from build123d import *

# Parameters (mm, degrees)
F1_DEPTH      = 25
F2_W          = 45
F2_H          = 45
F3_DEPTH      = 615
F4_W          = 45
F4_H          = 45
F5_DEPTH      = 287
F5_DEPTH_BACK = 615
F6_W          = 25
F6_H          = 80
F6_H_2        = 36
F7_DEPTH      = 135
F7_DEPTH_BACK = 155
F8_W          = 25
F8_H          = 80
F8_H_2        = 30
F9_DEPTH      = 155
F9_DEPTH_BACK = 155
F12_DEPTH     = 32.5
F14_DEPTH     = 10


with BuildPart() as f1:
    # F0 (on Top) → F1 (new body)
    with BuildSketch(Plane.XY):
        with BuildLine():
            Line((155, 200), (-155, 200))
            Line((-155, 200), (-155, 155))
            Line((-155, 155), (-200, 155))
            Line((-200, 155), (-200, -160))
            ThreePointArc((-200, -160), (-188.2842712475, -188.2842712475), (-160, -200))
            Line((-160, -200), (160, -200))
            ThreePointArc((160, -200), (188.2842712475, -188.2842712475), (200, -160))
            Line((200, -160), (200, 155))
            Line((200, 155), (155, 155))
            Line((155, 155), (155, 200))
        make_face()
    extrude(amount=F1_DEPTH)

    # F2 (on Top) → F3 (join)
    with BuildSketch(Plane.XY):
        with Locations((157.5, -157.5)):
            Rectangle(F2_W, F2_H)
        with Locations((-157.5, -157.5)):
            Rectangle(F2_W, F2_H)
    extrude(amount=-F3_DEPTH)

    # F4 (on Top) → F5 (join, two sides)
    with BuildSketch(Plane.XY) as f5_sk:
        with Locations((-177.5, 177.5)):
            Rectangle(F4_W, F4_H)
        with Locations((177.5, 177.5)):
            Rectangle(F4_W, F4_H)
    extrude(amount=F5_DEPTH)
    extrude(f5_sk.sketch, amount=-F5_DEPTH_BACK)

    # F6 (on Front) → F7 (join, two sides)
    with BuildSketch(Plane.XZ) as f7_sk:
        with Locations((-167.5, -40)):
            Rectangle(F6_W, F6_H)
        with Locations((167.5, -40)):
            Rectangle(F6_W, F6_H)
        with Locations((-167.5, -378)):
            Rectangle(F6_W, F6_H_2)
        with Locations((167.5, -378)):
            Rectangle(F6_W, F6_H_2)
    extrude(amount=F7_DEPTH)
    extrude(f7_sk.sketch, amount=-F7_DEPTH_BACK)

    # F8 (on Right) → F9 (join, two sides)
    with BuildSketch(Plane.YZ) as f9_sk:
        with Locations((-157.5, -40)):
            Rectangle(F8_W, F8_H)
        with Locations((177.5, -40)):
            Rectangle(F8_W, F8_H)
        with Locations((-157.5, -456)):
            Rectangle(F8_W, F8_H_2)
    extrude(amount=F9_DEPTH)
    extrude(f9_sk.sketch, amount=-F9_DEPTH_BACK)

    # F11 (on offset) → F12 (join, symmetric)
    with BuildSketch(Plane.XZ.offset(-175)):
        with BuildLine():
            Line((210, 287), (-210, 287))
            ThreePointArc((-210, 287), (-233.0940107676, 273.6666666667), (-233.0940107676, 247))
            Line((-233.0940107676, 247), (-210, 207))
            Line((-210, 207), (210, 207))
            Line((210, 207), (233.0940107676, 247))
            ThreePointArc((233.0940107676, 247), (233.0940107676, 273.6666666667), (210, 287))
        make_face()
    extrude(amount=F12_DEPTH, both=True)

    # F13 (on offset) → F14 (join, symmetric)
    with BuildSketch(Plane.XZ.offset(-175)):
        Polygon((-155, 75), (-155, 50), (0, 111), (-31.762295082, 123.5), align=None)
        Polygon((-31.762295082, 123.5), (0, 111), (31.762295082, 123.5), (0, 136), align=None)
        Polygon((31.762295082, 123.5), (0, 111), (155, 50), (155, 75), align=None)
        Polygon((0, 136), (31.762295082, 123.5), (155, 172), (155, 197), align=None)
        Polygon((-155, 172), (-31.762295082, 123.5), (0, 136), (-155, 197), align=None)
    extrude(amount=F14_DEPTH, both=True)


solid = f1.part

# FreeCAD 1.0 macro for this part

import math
import FreeCAD as App
import Part
import Sketcher

V = App.Vector
Q = App.Units.Quantity

doc = App.newDocument("Part")
params = doc.addObject("Spreadsheet::Sheet", "Params")
for row, (alias, value) in enumerate([
    ("sketch1_radius", "40 mm"),
    ("sketch1_width", "310 mm"),
    ("sketch1_width2", "45 mm"),
    ("sketch1_height", "315 mm"),
    ("pad1_length", "25 mm"),
    ("sketch2_width", "45 mm"),
    ("pad2_length", "615 mm"),
    ("sketch3_width", "45 mm"),
    ("pad3_length", "287 mm"),
    ("pad3_length2", "615 mm"),
    ("sketch4_width", "25 mm"),
    ("sketch4_height", "80 mm"),
    ("sketch4_height2", "36 mm"),
    ("pad4_length", "135 mm"),
    ("pad4_length2", "155 mm"),
    ("sketch5_width", "25 mm"),
    ("sketch5_height", "80 mm"),
    ("sketch5_height2", "30 mm"),
    ("pad5_length", "155 mm"),
    ("pad5_length2", "155 mm"),
    ("sketch6_width", "420 mm"),
    ("pad6_length", "65 mm"),
    ("sketch7_height", "25 mm"),
    ("pad7_length", "20 mm"),
], start=1):
    params.set(f"A{row}", alias)
    params.set(f"B{row}", "=" + value)
    params.setAlias(f"B{row}", alias)

body = doc.addObject("PartDesign::Body", "Body")

# Sketch on XY plane
sketch1 = doc.addObject("Sketcher::SketchObject", "Sketch")
body.addObject(sketch1)
sketch1.AttachmentSupport = (doc.XY_Plane, [""])
sketch1.MapMode = "FlatFace"
sketch1.addGeometry([
    Part.LineSegment(V(155, 200, 0), V(-155, 200, 0)),  # 0
    Part.LineSegment(V(-155, 200, 0), V(-155, 155, 0)),  # 1
    Part.LineSegment(V(-155, 155, 0), V(-200, 155, 0)),  # 2
    Part.LineSegment(V(-200, 155, 0), V(-200, -160, 0)),  # 3
    Part.ArcOfCircle(Part.Circle(V(-160, -160, 0), V(0, 0, 1), 40), math.radians(180), math.radians(270)),  # 4
    Part.LineSegment(V(-160, -200, 0), V(160, -200, 0)),  # 5
    Part.ArcOfCircle(Part.Circle(V(160, -160, 0), V(0, 0, 1), 40), math.radians(-90), math.radians(0)),  # 6
    Part.LineSegment(V(200, -160, 0), V(200, 155, 0)),  # 7
    Part.LineSegment(V(200, 155, 0), V(155, 155, 0)),  # 8
    Part.LineSegment(V(155, 155, 0), V(155, 200, 0)),  # 9
], False)
sketch1.addConstraint([
    Sketcher.Constraint("Coincident", 0, 2, 1, 1),
    Sketcher.Constraint("Coincident", 1, 2, 2, 1),
    Sketcher.Constraint("Coincident", 2, 2, 3, 1),
    Sketcher.Constraint("Tangent", 3, 2, 4, 1),
    Sketcher.Constraint("Tangent", 4, 2, 5, 1),
    Sketcher.Constraint("Tangent", 5, 2, 6, 1),
    Sketcher.Constraint("Tangent", 6, 2, 7, 1),
    Sketcher.Constraint("Coincident", 7, 2, 8, 1),
    Sketcher.Constraint("Coincident", 8, 2, 9, 1),
    Sketcher.Constraint("Coincident", 9, 2, 0, 1),
    Sketcher.Constraint("Horizontal", 0),
    Sketcher.Constraint("Vertical", 1),
    Sketcher.Constraint("Horizontal", 2),
    Sketcher.Constraint("Vertical", 3),
    Sketcher.Constraint("Horizontal", 5),
    Sketcher.Constraint("Vertical", 7),
    Sketcher.Constraint("Horizontal", 8),
    Sketcher.Constraint("Vertical", 9),
    Sketcher.Constraint("Equal", 4, 6),
    Sketcher.Constraint("Symmetric", 2, 2, 7, 2, -2),
    Sketcher.Constraint("Equal", 2, 8),
    Sketcher.Constraint("Equal", 8, 1),
    Sketcher.Constraint("Radius", 4, Q("40 mm")),
    Sketcher.Constraint("DistanceX", 0, 2, 0, 1, Q("310 mm")),
    Sketcher.Constraint("DistanceX", 2, 2, 2, 1, Q("45 mm")),
    Sketcher.Constraint("DistanceY", 3, 2, 3, 1, Q("315 mm")),
    Sketcher.Constraint("DistanceY", 4, 3, -1, 1, Q("160 mm")),
])
sketch1.setExpression("Constraints[22]", "Params.sketch1_radius")
sketch1.setExpression("Constraints[23]", "Params.sketch1_width")
sketch1.setExpression("Constraints[24]", "Params.sketch1_width2")
sketch1.setExpression("Constraints[25]", "Params.sketch1_height")
pad1 = doc.addObject("PartDesign::Pad", "Pad")
body.addObject(pad1)
pad1.Profile = sketch1
pad1.setExpression("Length", "Params.pad1_length")

# Sketch on XY plane
sketch2 = doc.addObject("Sketcher::SketchObject", "Sketch001")
body.addObject(sketch2)
sketch2.AttachmentSupport = (doc.XY_Plane, [""])
sketch2.MapMode = "FlatFace"
sketch2.addGeometry([
    Part.LineSegment(V(135, -135, 0), V(135, -180, 0)),  # 0
    Part.LineSegment(V(135, -180, 0), V(180, -180, 0)),  # 1
    Part.LineSegment(V(180, -180, 0), V(180, -135, 0)),  # 2
    Part.LineSegment(V(180, -135, 0), V(135, -135, 0)),  # 3
    Part.LineSegment(V(-180, -135, 0), V(-180, -180, 0)),  # 4
    Part.LineSegment(V(-180, -180, 0), V(-135, -180, 0)),  # 5
    Part.LineSegment(V(-135, -180, 0), V(-135, -135, 0)),  # 6
    Part.LineSegment(V(-135, -135, 0), V(-180, -135, 0)),  # 7
], False)
sketch2.addConstraint([
    Sketcher.Constraint("Coincident", 0, 2, 1, 1),
    Sketcher.Constraint("Coincident", 1, 2, 2, 1),
    Sketcher.Constraint("Coincident", 2, 2, 3, 1),
    Sketcher.Constraint("Coincident", 3, 2, 0, 1),
    Sketcher.Constraint("Coincident", 4, 2, 5, 1),
    Sketcher.Constraint("Coincident", 5, 2, 6, 1),
    Sketcher.Constraint("Coincident", 6, 2, 7, 1),
    Sketcher.Constraint("Coincident", 7, 2, 4, 1),
    Sketcher.Constraint("Vertical", 0),
    Sketcher.Constraint("Horizontal", 1),
    Sketcher.Constraint("Vertical", 2),
    Sketcher.Constraint("Horizontal", 3),
    Sketcher.Constraint("Vertical", 4),
    Sketcher.Constraint("Horizontal", 5),
    Sketcher.Constraint("Vertical", 6),
    Sketcher.Constraint("Horizontal", 7),
    Sketcher.Constraint("Symmetric", 1, 2, 4, 2, -2),
    Sketcher.Constraint("Symmetric", 3, 2, 6, 2, -2),
    Sketcher.Constraint("Equal", 7, 0),
    Sketcher.Constraint("DistanceX", 1, 1, 1, 2, Q("45 mm")),
    Sketcher.Constraint("DistanceX", -1, 1, 0, 2, Q("135 mm")),
    Sketcher.Constraint("DistanceY", 0, 2, -1, 1, Q("180 mm")),
])
sketch2.setExpression("Constraints[19]", "Params.sketch2_width")
pad2 = doc.addObject("PartDesign::Pad", "Pad001")
body.addObject(pad2)
pad2.Profile = sketch2
pad2.setExpression("Length", "Params.pad2_length")
pad2.Reversed = True

# Sketch on XY plane
sketch3 = doc.addObject("Sketcher::SketchObject", "Sketch002")
body.addObject(sketch3)
sketch3.AttachmentSupport = (doc.XY_Plane, [""])
sketch3.MapMode = "FlatFace"
sketch3.addGeometry([
    Part.LineSegment(V(-200, 200, 0), V(-200, 155, 0)),  # 0
    Part.LineSegment(V(-200, 155, 0), V(-155, 155, 0)),  # 1
    Part.LineSegment(V(-155, 155, 0), V(-155, 200, 0)),  # 2
    Part.LineSegment(V(-155, 200, 0), V(-200, 200, 0)),  # 3
    Part.LineSegment(V(155, 200, 0), V(155, 155, 0)),  # 4
    Part.LineSegment(V(155, 155, 0), V(200, 155, 0)),  # 5
    Part.LineSegment(V(200, 155, 0), V(200, 200, 0)),  # 6
    Part.LineSegment(V(200, 200, 0), V(155, 200, 0)),  # 7
], False)
sketch3.addConstraint([
    Sketcher.Constraint("Coincident", 0, 2, 1, 1),
    Sketcher.Constraint("Coincident", 1, 2, 2, 1),
    Sketcher.Constraint("Coincident", 2, 2, 3, 1),
    Sketcher.Constraint("Coincident", 3, 2, 0, 1),
    Sketcher.Constraint("Coincident", 4, 2, 5, 1),
    Sketcher.Constraint("Coincident", 5, 2, 6, 1),
    Sketcher.Constraint("Coincident", 6, 2, 7, 1),
    Sketcher.Constraint("Coincident", 7, 2, 4, 1),
    Sketcher.Constraint("Vertical", 0),
    Sketcher.Constraint("Horizontal", 1),
    Sketcher.Constraint("Vertical", 2),
    Sketcher.Constraint("Horizontal", 3),
    Sketcher.Constraint("Vertical", 4),
    Sketcher.Constraint("Horizontal", 5),
    Sketcher.Constraint("Vertical", 6),
    Sketcher.Constraint("Horizontal", 7),
    Sketcher.Constraint("Symmetric", 1, 2, 4, 2, -2),
    Sketcher.Constraint("Symmetric", 3, 2, 6, 2, -2),
    Sketcher.Constraint("Equal", 7, 0),
    Sketcher.Constraint("DistanceX", 1, 1, 1, 2, Q("45 mm")),
    Sketcher.Constraint("DistanceX", 0, 2, -1, 1, Q("200 mm")),
    Sketcher.Constraint("DistanceY", -1, 1, 0, 2, Q("155 mm")),
])
sketch3.setExpression("Constraints[19]", "Params.sketch3_width")
pad3 = doc.addObject("PartDesign::Pad", "Pad002")
body.addObject(pad3)
pad3.Profile = sketch3
pad3.Type = "TwoLengths"
pad3.setExpression("Length", "Params.pad3_length")
pad3.setExpression("Length2", "Params.pad3_length2")

# Sketch on XZ plane
sketch4 = doc.addObject("Sketcher::SketchObject", "Sketch003")
body.addObject(sketch4)
sketch4.AttachmentSupport = (doc.XZ_Plane, [""])
sketch4.MapMode = "FlatFace"
sketch4.addGeometry([
    Part.LineSegment(V(-180, 0, 0), V(-180, -80, 0)),  # 0
    Part.LineSegment(V(-180, -80, 0), V(-155, -80, 0)),  # 1
    Part.LineSegment(V(-155, -80, 0), V(-155, 0, 0)),  # 2
    Part.LineSegment(V(-155, 0, 0), V(-180, 0, 0)),  # 3
    Part.LineSegment(V(155, 0, 0), V(155, -80, 0)),  # 4
    Part.LineSegment(V(155, -80, 0), V(180, -80, 0)),  # 5
    Part.LineSegment(V(180, -80, 0), V(180, 0, 0)),  # 6
    Part.LineSegment(V(180, 0, 0), V(155, 0, 0)),  # 7
    Part.LineSegment(V(-180, -360, 0), V(-180, -396, 0)),  # 8
    Part.LineSegment(V(-180, -396, 0), V(-155, -396, 0)),  # 9
    Part.LineSegment(V(-155, -396, 0), V(-155, -360, 0)),  # 10
    Part.LineSegment(V(-155, -360, 0), V(-180, -360, 0)),  # 11
    Part.LineSegment(V(155, -360, 0), V(155, -396, 0)),  # 12
    Part.LineSegment(V(155, -396, 0), V(180, -396, 0)),  # 13
    Part.LineSegment(V(180, -396, 0), V(180, -360, 0)),  # 14
    Part.LineSegment(V(180, -360, 0), V(155, -360, 0)),  # 15
], False)
sketch4.addConstraint([
    Sketcher.Constraint("Coincident", 0, 2, 1, 1),
    Sketcher.Constraint("Coincident", 1, 2, 2, 1),
    Sketcher.Constraint("Coincident", 2, 2, 3, 1),
    Sketcher.Constraint("Coincident", 3, 2, 0, 1),
    Sketcher.Constraint("Coincident", 4, 2, 5, 1),
    Sketcher.Constraint("Coincident", 5, 2, 6, 1),
    Sketcher.Constraint("Coincident", 6, 2, 7, 1),
    Sketcher.Constraint("Coincident", 7, 2, 4, 1),
    Sketcher.Constraint("Coincident", 8, 2, 9, 1),
    Sketcher.Constraint("Coincident", 9, 2, 10, 1),
    Sketcher.Constraint("Coincident", 10, 2, 11, 1),
    Sketcher.Constraint("Coincident", 11, 2, 8, 1),
    Sketcher.Constraint("Coincident", 12, 2, 13, 1),
    Sketcher.Constraint("Coincident", 13, 2, 14, 1),
    Sketcher.Constraint("Coincident", 14, 2, 15, 1),
    Sketcher.Constraint("Coincident", 15, 2, 12, 1),
    Sketcher.Constraint("Vertical", 0),
    Sketcher.Constraint("Horizontal", 1),
    Sketcher.Constraint("Vertical", 2),
    Sketcher.Constraint("Horizontal", 3),
    Sketcher.Constraint("Vertical", 4),
    Sketcher.Constraint("Horizontal", 5),
    Sketcher.Constraint("Vertical", 6),
    Sketcher.Constraint("Horizontal", 7),
    Sketcher.Constraint("Vertical", 8),
    Sketcher.Constraint("Horizontal", 9),
    Sketcher.Constraint("Vertical", 10),
    Sketcher.Constraint("Horizontal", 11),
    Sketcher.Constraint("Vertical", 12),
    Sketcher.Constraint("Horizontal", 13),
    Sketcher.Constraint("Vertical", 14),
    Sketcher.Constraint("Horizontal", 15),
    Sketcher.Constraint("Symmetric", 3, 2, 6, 2, -1, 1),
    Sketcher.Constraint("Symmetric", 1, 2, 4, 2, -2),
    Sketcher.Constraint("Symmetric", 9, 2, 12, 2, -2),
    Sketcher.Constraint("Symmetric", 11, 2, 14, 2, -2),
    Sketcher.Constraint("PointOnObject", 2, 2, -1),
    Sketcher.Constraint("Vertical", 3, 2, 8, 2),
    Sketcher.Constraint("Vertical", 2, 2, 9, 2),
    Sketcher.Constraint("DistanceX", 1, 1, 1, 2, Q("25 mm")),
    Sketcher.Constraint("DistanceY", 0, 2, 0, 1, Q("80 mm")),
    Sketcher.Constraint("DistanceY", 8, 2, 8, 1, Q("36 mm")),
    Sketcher.Constraint("DistanceX", 0, 2, -1, 1, Q("180 mm")),
    Sketcher.Constraint("DistanceY", 8, 2, -1, 1, Q("396 mm")),
])
sketch4.setExpression("Constraints[39]", "Params.sketch4_width")
sketch4.setExpression("Constraints[40]", "Params.sketch4_height")
sketch4.setExpression("Constraints[41]", "Params.sketch4_height2")
pad4 = doc.addObject("PartDesign::Pad", "Pad003")
body.addObject(pad4)
pad4.Profile = sketch4
pad4.Type = "TwoLengths"
pad4.setExpression("Length", "Params.pad4_length")
pad4.setExpression("Length2", "Params.pad4_length2")

# Sketch on YZ plane
sketch5 = doc.addObject("Sketcher::SketchObject", "Sketch004")
body.addObject(sketch5)
sketch5.AttachmentSupport = (doc.YZ_Plane, [""])
sketch5.MapMode = "FlatFace"
sketch5.addGeometry([
    Part.LineSegment(V(-170, 0, 0), V(-170, -80, 0)),  # 0
    Part.LineSegment(V(-170, -80, 0), V(-145, -80, 0)),  # 1
    Part.LineSegment(V(-145, -80, 0), V(-145, 0, 0)),  # 2
    Part.LineSegment(V(-145, 0, 0), V(-170, 0, 0)),  # 3
    Part.LineSegment(V(165, 0, 0), V(165, -80, 0)),  # 4
    Part.LineSegment(V(165, -80, 0), V(190, -80, 0)),  # 5
    Part.LineSegment(V(190, -80, 0), V(190, 0, 0)),  # 6
    Part.LineSegment(V(190, 0, 0), V(165, 0, 0)),  # 7
    Part.LineSegment(V(-170, -441, 0), V(-170, -471, 0)),  # 8
    Part.LineSegment(V(-170, -471, 0), V(-145, -471, 0)),  # 9
    Part.LineSegment(V(-145, -471, 0), V(-145, -441, 0)),  # 10
    Part.LineSegment(V(-145, -441, 0), V(-170, -441, 0)),  # 11
], False)
sketch5.addConstraint([
    Sketcher.Constraint("Coincident", 0, 2, 1, 1),
    Sketcher.Constraint("Coincident", 1, 2, 2, 1),
    Sketcher.Constraint("Coincident", 2, 2, 3, 1),
    Sketcher.Constraint("Coincident", 3, 2, 0, 1),
    Sketcher.Constraint("Coincident", 4, 2, 5, 1),
    Sketcher.Constraint("Coincident", 5, 2, 6, 1),
    Sketcher.Constraint("Coincident", 6, 2, 7, 1),
    Sketcher.Constraint("Coincident", 7, 2, 4, 1),
    Sketcher.Constraint("Coincident", 8, 2, 9, 1),
    Sketcher.Constraint("Coincident", 9, 2, 10, 1),
    Sketcher.Constraint("Coincident", 10, 2, 11, 1),
    Sketcher.Constraint("Coincident", 11, 2, 8, 1),
    Sketcher.Constraint("Vertical", 0),
    Sketcher.Constraint("Horizontal", 1),
    Sketcher.Constraint("Vertical", 2),
    Sketcher.Constraint("Horizontal", 3),
    Sketcher.Constraint("Vertical", 4),
    Sketcher.Constraint("Horizontal", 5),
    Sketcher.Constraint("Vertical", 6),
    Sketcher.Constraint("Horizontal", 7),
    Sketcher.Constraint("Vertical", 8),
    Sketcher.Constraint("Horizontal", 9),
    Sketcher.Constraint("Vertical", 10),
    Sketcher.Constraint("Horizontal", 11),
    Sketcher.Constraint("PointOnObject", 2, 2, -1),
    Sketcher.Constraint("PointOnObject", 6, 2, -1),
    Sketcher.Constraint("Horizontal", 1, 2, 4, 2),
    Sketcher.Constraint("Vertical", 3, 2, 8, 2),
    Sketcher.Constraint("Vertical", 2, 2, 9, 2),
    Sketcher.Constraint("Equal", 3, 5),
    Sketcher.Constraint("DistanceX", 1, 1, 1, 2, Q("25 mm")),
    Sketcher.Constraint("DistanceY", 0, 2, 0, 1, Q("80 mm")),
    Sketcher.Constraint("DistanceY", 8, 2, 8, 1, Q("30 mm")),
    Sketcher.Constraint("DistanceX", 0, 2, -1, 1, Q("170 mm")),
    Sketcher.Constraint("DistanceX", -1, 1, 4, 2, Q("165 mm")),
    Sketcher.Constraint("DistanceY", 8, 2, -1, 1, Q("471 mm")),
])
sketch5.setExpression("Constraints[30]", "Params.sketch5_width")
sketch5.setExpression("Constraints[31]", "Params.sketch5_height")
sketch5.setExpression("Constraints[32]", "Params.sketch5_height2")
pad5 = doc.addObject("PartDesign::Pad", "Pad004")
body.addObject(pad5)
pad5.Profile = sketch5
pad5.Type = "TwoLengths"
pad5.setExpression("Length", "Params.pad5_length")
pad5.setExpression("Length2", "Params.pad5_length2")

# Sketch on XZ plane
sketch6 = doc.addObject("Sketcher::SketchObject", "Sketch005")
body.addObject(sketch6)
sketch6.AttachmentSupport = (doc.XZ_Plane, [""])
sketch6.MapMode = "FlatFace"
sketch6.AttachmentOffset = App.Placement(V(0, 0, -175), App.Rotation())
sketch6.addGeometry([
    Part.LineSegment(V(210, 287, 0), V(-210, 287, 0)),  # 0
    Part.ArcOfCircle(Part.Circle(V(-210, 260.333333, 0), V(0, 0, 1), 26.666667), math.radians(90), math.radians(210)),  # 1
    Part.LineSegment(V(-233.094011, 247, 0), V(-210, 207, 0)),  # 2
    Part.LineSegment(V(-210, 207, 0), V(210, 207, 0)),  # 3
    Part.LineSegment(V(210, 207, 0), V(233.094011, 247, 0)),  # 4
    Part.ArcOfCircle(Part.Circle(V(210, 260.333333, 0), V(0, 0, 1), 26.666667), math.radians(-30), math.radians(90)),  # 5
], False)
sketch6.addConstraint([
    Sketcher.Constraint("Tangent", 0, 2, 1, 1),
    Sketcher.Constraint("Tangent", 1, 2, 2, 1),
    Sketcher.Constraint("Coincident", 2, 2, 3, 1),
    Sketcher.Constraint("Coincident", 3, 2, 4, 1),
    Sketcher.Constraint("Tangent", 4, 2, 5, 1),
    Sketcher.Constraint("Tangent", 5, 2, 0, 1),
    Sketcher.Constraint("Horizontal", 0),
    Sketcher.Constraint("Horizontal", 3),
    Sketcher.Constraint("Equal", 1, 5),
    Sketcher.Constraint("Symmetric", 1, 2, 4, 2, -2),
    Sketcher.Constraint("Vertical", 0, 2, 2, 2),
    Sketcher.Constraint("DistanceX", 0, 2, 0, 1, Q("420 mm")),
    Sketcher.Constraint("Angle", 2, Q("-60 deg")),
    Sketcher.Constraint("DistanceY", -1, 1, 0, 2, Q("287 mm")),
    Sketcher.Constraint("DistanceY", -1, 1, 1, 2, Q("247 mm")),
])
sketch6.setExpression("Constraints[11]", "Params.sketch6_width")
pad6 = doc.addObject("PartDesign::Pad", "Pad005")
body.addObject(pad6)
pad6.Profile = sketch6
pad6.setExpression("Length", "Params.pad6_length")
pad6.Midplane = True

# Sketch on XZ plane
sketch7 = doc.addObject("Sketcher::SketchObject", "Sketch006")
body.addObject(sketch7)
sketch7.AttachmentSupport = (doc.XZ_Plane, [""])
sketch7.MapMode = "FlatFace"
sketch7.AttachmentOffset = App.Placement(V(0, 0, -175), App.Rotation())
sketch7.addGeometry([
    Part.LineSegment(V(-155, 75, 0), V(-155, 50, 0)),  # 0
    Part.LineSegment(V(-155, 50, 0), V(0, 111, 0)),  # 1
    Part.LineSegment(V(0, 111, 0), V(155, 50, 0)),  # 2
    Part.LineSegment(V(155, 50, 0), V(155, 75, 0)),  # 3
    Part.LineSegment(V(155, 75, 0), V(31.762295, 123.5, 0)),  # 4
    Part.LineSegment(V(31.762295, 123.5, 0), V(155, 172, 0)),  # 5
    Part.LineSegment(V(155, 172, 0), V(155, 197, 0)),  # 6
    Part.LineSegment(V(155, 197, 0), V(0, 136, 0)),  # 7
    Part.LineSegment(V(0, 136, 0), V(-155, 197, 0)),  # 8
    Part.LineSegment(V(-155, 197, 0), V(-155, 172, 0)),  # 9
    Part.LineSegment(V(-155, 172, 0), V(-31.762295, 123.5, 0)),  # 10
    Part.LineSegment(V(-31.762295, 123.5, 0), V(-155, 75, 0)),  # 11
], False)
sketch7.addConstraint([
    Sketcher.Constraint("Coincident", 0, 2, 1, 1),
    Sketcher.Constraint("Coincident", 1, 2, 2, 1),
    Sketcher.Constraint("Coincident", 2, 2, 3, 1),
    Sketcher.Constraint("Coincident", 3, 2, 4, 1),
    Sketcher.Constraint("Coincident", 4, 2, 5, 1),
    Sketcher.Constraint("Coincident", 5, 2, 6, 1),
    Sketcher.Constraint("Coincident", 6, 2, 7, 1),
    Sketcher.Constraint("Coincident", 7, 2, 8, 1),
    Sketcher.Constraint("Coincident", 8, 2, 9, 1),
    Sketcher.Constraint("Coincident", 9, 2, 10, 1),
    Sketcher.Constraint("Coincident", 10, 2, 11, 1),
    Sketcher.Constraint("Coincident", 11, 2, 0, 1),
    Sketcher.Constraint("Vertical", 0),
    Sketcher.Constraint("Vertical", 3),
    Sketcher.Constraint("Vertical", 6),
    Sketcher.Constraint("Vertical", 9),
    Sketcher.Constraint("Symmetric", 0, 2, 2, 2, -2),
    Sketcher.Constraint("Symmetric", 6, 2, 8, 2, -2),
    Sketcher.Constraint("Symmetric", 4, 2, 10, 2, -2),
    Sketcher.Constraint("PointOnObject", 1, 2, -2),
    Sketcher.Constraint("PointOnObject", 7, 2, -2),
    Sketcher.Constraint("Parallel", 2, 4),
    Sketcher.Constraint("Parallel", 1, 5),
    Sketcher.Constraint("Parallel", 5, 7),
    Sketcher.Constraint("Parallel", 8, 10),
    Sketcher.Constraint("Parallel", 7, 11),
    Sketcher.Constraint("Vertical", 3, 2, 5, 2),
    Sketcher.Constraint("Equal", 3, 6),
    Sketcher.Constraint("DistanceY", 0, 2, 0, 1, Q("25 mm")),
    Sketcher.Constraint("DistanceX", 0, 2, -1, 1, Q("155 mm")),
    Sketcher.Constraint("DistanceY", -1, 1, 0, 2, Q("50 mm")),
    Sketcher.Constraint("DistanceY", -1, 1, 1, 2, Q("111 mm")),
    Sketcher.Constraint("DistanceY", -1, 1, 5, 2, Q("172 mm")),
])
sketch7.setExpression("Constraints[28]", "Params.sketch7_height")
pad7 = doc.addObject("PartDesign::Pad", "Pad006")
body.addObject(pad7)
pad7.Profile = sketch7
pad7.setExpression("Length", "Params.pad7_length")
pad7.Midplane = True

doc.recompute()
